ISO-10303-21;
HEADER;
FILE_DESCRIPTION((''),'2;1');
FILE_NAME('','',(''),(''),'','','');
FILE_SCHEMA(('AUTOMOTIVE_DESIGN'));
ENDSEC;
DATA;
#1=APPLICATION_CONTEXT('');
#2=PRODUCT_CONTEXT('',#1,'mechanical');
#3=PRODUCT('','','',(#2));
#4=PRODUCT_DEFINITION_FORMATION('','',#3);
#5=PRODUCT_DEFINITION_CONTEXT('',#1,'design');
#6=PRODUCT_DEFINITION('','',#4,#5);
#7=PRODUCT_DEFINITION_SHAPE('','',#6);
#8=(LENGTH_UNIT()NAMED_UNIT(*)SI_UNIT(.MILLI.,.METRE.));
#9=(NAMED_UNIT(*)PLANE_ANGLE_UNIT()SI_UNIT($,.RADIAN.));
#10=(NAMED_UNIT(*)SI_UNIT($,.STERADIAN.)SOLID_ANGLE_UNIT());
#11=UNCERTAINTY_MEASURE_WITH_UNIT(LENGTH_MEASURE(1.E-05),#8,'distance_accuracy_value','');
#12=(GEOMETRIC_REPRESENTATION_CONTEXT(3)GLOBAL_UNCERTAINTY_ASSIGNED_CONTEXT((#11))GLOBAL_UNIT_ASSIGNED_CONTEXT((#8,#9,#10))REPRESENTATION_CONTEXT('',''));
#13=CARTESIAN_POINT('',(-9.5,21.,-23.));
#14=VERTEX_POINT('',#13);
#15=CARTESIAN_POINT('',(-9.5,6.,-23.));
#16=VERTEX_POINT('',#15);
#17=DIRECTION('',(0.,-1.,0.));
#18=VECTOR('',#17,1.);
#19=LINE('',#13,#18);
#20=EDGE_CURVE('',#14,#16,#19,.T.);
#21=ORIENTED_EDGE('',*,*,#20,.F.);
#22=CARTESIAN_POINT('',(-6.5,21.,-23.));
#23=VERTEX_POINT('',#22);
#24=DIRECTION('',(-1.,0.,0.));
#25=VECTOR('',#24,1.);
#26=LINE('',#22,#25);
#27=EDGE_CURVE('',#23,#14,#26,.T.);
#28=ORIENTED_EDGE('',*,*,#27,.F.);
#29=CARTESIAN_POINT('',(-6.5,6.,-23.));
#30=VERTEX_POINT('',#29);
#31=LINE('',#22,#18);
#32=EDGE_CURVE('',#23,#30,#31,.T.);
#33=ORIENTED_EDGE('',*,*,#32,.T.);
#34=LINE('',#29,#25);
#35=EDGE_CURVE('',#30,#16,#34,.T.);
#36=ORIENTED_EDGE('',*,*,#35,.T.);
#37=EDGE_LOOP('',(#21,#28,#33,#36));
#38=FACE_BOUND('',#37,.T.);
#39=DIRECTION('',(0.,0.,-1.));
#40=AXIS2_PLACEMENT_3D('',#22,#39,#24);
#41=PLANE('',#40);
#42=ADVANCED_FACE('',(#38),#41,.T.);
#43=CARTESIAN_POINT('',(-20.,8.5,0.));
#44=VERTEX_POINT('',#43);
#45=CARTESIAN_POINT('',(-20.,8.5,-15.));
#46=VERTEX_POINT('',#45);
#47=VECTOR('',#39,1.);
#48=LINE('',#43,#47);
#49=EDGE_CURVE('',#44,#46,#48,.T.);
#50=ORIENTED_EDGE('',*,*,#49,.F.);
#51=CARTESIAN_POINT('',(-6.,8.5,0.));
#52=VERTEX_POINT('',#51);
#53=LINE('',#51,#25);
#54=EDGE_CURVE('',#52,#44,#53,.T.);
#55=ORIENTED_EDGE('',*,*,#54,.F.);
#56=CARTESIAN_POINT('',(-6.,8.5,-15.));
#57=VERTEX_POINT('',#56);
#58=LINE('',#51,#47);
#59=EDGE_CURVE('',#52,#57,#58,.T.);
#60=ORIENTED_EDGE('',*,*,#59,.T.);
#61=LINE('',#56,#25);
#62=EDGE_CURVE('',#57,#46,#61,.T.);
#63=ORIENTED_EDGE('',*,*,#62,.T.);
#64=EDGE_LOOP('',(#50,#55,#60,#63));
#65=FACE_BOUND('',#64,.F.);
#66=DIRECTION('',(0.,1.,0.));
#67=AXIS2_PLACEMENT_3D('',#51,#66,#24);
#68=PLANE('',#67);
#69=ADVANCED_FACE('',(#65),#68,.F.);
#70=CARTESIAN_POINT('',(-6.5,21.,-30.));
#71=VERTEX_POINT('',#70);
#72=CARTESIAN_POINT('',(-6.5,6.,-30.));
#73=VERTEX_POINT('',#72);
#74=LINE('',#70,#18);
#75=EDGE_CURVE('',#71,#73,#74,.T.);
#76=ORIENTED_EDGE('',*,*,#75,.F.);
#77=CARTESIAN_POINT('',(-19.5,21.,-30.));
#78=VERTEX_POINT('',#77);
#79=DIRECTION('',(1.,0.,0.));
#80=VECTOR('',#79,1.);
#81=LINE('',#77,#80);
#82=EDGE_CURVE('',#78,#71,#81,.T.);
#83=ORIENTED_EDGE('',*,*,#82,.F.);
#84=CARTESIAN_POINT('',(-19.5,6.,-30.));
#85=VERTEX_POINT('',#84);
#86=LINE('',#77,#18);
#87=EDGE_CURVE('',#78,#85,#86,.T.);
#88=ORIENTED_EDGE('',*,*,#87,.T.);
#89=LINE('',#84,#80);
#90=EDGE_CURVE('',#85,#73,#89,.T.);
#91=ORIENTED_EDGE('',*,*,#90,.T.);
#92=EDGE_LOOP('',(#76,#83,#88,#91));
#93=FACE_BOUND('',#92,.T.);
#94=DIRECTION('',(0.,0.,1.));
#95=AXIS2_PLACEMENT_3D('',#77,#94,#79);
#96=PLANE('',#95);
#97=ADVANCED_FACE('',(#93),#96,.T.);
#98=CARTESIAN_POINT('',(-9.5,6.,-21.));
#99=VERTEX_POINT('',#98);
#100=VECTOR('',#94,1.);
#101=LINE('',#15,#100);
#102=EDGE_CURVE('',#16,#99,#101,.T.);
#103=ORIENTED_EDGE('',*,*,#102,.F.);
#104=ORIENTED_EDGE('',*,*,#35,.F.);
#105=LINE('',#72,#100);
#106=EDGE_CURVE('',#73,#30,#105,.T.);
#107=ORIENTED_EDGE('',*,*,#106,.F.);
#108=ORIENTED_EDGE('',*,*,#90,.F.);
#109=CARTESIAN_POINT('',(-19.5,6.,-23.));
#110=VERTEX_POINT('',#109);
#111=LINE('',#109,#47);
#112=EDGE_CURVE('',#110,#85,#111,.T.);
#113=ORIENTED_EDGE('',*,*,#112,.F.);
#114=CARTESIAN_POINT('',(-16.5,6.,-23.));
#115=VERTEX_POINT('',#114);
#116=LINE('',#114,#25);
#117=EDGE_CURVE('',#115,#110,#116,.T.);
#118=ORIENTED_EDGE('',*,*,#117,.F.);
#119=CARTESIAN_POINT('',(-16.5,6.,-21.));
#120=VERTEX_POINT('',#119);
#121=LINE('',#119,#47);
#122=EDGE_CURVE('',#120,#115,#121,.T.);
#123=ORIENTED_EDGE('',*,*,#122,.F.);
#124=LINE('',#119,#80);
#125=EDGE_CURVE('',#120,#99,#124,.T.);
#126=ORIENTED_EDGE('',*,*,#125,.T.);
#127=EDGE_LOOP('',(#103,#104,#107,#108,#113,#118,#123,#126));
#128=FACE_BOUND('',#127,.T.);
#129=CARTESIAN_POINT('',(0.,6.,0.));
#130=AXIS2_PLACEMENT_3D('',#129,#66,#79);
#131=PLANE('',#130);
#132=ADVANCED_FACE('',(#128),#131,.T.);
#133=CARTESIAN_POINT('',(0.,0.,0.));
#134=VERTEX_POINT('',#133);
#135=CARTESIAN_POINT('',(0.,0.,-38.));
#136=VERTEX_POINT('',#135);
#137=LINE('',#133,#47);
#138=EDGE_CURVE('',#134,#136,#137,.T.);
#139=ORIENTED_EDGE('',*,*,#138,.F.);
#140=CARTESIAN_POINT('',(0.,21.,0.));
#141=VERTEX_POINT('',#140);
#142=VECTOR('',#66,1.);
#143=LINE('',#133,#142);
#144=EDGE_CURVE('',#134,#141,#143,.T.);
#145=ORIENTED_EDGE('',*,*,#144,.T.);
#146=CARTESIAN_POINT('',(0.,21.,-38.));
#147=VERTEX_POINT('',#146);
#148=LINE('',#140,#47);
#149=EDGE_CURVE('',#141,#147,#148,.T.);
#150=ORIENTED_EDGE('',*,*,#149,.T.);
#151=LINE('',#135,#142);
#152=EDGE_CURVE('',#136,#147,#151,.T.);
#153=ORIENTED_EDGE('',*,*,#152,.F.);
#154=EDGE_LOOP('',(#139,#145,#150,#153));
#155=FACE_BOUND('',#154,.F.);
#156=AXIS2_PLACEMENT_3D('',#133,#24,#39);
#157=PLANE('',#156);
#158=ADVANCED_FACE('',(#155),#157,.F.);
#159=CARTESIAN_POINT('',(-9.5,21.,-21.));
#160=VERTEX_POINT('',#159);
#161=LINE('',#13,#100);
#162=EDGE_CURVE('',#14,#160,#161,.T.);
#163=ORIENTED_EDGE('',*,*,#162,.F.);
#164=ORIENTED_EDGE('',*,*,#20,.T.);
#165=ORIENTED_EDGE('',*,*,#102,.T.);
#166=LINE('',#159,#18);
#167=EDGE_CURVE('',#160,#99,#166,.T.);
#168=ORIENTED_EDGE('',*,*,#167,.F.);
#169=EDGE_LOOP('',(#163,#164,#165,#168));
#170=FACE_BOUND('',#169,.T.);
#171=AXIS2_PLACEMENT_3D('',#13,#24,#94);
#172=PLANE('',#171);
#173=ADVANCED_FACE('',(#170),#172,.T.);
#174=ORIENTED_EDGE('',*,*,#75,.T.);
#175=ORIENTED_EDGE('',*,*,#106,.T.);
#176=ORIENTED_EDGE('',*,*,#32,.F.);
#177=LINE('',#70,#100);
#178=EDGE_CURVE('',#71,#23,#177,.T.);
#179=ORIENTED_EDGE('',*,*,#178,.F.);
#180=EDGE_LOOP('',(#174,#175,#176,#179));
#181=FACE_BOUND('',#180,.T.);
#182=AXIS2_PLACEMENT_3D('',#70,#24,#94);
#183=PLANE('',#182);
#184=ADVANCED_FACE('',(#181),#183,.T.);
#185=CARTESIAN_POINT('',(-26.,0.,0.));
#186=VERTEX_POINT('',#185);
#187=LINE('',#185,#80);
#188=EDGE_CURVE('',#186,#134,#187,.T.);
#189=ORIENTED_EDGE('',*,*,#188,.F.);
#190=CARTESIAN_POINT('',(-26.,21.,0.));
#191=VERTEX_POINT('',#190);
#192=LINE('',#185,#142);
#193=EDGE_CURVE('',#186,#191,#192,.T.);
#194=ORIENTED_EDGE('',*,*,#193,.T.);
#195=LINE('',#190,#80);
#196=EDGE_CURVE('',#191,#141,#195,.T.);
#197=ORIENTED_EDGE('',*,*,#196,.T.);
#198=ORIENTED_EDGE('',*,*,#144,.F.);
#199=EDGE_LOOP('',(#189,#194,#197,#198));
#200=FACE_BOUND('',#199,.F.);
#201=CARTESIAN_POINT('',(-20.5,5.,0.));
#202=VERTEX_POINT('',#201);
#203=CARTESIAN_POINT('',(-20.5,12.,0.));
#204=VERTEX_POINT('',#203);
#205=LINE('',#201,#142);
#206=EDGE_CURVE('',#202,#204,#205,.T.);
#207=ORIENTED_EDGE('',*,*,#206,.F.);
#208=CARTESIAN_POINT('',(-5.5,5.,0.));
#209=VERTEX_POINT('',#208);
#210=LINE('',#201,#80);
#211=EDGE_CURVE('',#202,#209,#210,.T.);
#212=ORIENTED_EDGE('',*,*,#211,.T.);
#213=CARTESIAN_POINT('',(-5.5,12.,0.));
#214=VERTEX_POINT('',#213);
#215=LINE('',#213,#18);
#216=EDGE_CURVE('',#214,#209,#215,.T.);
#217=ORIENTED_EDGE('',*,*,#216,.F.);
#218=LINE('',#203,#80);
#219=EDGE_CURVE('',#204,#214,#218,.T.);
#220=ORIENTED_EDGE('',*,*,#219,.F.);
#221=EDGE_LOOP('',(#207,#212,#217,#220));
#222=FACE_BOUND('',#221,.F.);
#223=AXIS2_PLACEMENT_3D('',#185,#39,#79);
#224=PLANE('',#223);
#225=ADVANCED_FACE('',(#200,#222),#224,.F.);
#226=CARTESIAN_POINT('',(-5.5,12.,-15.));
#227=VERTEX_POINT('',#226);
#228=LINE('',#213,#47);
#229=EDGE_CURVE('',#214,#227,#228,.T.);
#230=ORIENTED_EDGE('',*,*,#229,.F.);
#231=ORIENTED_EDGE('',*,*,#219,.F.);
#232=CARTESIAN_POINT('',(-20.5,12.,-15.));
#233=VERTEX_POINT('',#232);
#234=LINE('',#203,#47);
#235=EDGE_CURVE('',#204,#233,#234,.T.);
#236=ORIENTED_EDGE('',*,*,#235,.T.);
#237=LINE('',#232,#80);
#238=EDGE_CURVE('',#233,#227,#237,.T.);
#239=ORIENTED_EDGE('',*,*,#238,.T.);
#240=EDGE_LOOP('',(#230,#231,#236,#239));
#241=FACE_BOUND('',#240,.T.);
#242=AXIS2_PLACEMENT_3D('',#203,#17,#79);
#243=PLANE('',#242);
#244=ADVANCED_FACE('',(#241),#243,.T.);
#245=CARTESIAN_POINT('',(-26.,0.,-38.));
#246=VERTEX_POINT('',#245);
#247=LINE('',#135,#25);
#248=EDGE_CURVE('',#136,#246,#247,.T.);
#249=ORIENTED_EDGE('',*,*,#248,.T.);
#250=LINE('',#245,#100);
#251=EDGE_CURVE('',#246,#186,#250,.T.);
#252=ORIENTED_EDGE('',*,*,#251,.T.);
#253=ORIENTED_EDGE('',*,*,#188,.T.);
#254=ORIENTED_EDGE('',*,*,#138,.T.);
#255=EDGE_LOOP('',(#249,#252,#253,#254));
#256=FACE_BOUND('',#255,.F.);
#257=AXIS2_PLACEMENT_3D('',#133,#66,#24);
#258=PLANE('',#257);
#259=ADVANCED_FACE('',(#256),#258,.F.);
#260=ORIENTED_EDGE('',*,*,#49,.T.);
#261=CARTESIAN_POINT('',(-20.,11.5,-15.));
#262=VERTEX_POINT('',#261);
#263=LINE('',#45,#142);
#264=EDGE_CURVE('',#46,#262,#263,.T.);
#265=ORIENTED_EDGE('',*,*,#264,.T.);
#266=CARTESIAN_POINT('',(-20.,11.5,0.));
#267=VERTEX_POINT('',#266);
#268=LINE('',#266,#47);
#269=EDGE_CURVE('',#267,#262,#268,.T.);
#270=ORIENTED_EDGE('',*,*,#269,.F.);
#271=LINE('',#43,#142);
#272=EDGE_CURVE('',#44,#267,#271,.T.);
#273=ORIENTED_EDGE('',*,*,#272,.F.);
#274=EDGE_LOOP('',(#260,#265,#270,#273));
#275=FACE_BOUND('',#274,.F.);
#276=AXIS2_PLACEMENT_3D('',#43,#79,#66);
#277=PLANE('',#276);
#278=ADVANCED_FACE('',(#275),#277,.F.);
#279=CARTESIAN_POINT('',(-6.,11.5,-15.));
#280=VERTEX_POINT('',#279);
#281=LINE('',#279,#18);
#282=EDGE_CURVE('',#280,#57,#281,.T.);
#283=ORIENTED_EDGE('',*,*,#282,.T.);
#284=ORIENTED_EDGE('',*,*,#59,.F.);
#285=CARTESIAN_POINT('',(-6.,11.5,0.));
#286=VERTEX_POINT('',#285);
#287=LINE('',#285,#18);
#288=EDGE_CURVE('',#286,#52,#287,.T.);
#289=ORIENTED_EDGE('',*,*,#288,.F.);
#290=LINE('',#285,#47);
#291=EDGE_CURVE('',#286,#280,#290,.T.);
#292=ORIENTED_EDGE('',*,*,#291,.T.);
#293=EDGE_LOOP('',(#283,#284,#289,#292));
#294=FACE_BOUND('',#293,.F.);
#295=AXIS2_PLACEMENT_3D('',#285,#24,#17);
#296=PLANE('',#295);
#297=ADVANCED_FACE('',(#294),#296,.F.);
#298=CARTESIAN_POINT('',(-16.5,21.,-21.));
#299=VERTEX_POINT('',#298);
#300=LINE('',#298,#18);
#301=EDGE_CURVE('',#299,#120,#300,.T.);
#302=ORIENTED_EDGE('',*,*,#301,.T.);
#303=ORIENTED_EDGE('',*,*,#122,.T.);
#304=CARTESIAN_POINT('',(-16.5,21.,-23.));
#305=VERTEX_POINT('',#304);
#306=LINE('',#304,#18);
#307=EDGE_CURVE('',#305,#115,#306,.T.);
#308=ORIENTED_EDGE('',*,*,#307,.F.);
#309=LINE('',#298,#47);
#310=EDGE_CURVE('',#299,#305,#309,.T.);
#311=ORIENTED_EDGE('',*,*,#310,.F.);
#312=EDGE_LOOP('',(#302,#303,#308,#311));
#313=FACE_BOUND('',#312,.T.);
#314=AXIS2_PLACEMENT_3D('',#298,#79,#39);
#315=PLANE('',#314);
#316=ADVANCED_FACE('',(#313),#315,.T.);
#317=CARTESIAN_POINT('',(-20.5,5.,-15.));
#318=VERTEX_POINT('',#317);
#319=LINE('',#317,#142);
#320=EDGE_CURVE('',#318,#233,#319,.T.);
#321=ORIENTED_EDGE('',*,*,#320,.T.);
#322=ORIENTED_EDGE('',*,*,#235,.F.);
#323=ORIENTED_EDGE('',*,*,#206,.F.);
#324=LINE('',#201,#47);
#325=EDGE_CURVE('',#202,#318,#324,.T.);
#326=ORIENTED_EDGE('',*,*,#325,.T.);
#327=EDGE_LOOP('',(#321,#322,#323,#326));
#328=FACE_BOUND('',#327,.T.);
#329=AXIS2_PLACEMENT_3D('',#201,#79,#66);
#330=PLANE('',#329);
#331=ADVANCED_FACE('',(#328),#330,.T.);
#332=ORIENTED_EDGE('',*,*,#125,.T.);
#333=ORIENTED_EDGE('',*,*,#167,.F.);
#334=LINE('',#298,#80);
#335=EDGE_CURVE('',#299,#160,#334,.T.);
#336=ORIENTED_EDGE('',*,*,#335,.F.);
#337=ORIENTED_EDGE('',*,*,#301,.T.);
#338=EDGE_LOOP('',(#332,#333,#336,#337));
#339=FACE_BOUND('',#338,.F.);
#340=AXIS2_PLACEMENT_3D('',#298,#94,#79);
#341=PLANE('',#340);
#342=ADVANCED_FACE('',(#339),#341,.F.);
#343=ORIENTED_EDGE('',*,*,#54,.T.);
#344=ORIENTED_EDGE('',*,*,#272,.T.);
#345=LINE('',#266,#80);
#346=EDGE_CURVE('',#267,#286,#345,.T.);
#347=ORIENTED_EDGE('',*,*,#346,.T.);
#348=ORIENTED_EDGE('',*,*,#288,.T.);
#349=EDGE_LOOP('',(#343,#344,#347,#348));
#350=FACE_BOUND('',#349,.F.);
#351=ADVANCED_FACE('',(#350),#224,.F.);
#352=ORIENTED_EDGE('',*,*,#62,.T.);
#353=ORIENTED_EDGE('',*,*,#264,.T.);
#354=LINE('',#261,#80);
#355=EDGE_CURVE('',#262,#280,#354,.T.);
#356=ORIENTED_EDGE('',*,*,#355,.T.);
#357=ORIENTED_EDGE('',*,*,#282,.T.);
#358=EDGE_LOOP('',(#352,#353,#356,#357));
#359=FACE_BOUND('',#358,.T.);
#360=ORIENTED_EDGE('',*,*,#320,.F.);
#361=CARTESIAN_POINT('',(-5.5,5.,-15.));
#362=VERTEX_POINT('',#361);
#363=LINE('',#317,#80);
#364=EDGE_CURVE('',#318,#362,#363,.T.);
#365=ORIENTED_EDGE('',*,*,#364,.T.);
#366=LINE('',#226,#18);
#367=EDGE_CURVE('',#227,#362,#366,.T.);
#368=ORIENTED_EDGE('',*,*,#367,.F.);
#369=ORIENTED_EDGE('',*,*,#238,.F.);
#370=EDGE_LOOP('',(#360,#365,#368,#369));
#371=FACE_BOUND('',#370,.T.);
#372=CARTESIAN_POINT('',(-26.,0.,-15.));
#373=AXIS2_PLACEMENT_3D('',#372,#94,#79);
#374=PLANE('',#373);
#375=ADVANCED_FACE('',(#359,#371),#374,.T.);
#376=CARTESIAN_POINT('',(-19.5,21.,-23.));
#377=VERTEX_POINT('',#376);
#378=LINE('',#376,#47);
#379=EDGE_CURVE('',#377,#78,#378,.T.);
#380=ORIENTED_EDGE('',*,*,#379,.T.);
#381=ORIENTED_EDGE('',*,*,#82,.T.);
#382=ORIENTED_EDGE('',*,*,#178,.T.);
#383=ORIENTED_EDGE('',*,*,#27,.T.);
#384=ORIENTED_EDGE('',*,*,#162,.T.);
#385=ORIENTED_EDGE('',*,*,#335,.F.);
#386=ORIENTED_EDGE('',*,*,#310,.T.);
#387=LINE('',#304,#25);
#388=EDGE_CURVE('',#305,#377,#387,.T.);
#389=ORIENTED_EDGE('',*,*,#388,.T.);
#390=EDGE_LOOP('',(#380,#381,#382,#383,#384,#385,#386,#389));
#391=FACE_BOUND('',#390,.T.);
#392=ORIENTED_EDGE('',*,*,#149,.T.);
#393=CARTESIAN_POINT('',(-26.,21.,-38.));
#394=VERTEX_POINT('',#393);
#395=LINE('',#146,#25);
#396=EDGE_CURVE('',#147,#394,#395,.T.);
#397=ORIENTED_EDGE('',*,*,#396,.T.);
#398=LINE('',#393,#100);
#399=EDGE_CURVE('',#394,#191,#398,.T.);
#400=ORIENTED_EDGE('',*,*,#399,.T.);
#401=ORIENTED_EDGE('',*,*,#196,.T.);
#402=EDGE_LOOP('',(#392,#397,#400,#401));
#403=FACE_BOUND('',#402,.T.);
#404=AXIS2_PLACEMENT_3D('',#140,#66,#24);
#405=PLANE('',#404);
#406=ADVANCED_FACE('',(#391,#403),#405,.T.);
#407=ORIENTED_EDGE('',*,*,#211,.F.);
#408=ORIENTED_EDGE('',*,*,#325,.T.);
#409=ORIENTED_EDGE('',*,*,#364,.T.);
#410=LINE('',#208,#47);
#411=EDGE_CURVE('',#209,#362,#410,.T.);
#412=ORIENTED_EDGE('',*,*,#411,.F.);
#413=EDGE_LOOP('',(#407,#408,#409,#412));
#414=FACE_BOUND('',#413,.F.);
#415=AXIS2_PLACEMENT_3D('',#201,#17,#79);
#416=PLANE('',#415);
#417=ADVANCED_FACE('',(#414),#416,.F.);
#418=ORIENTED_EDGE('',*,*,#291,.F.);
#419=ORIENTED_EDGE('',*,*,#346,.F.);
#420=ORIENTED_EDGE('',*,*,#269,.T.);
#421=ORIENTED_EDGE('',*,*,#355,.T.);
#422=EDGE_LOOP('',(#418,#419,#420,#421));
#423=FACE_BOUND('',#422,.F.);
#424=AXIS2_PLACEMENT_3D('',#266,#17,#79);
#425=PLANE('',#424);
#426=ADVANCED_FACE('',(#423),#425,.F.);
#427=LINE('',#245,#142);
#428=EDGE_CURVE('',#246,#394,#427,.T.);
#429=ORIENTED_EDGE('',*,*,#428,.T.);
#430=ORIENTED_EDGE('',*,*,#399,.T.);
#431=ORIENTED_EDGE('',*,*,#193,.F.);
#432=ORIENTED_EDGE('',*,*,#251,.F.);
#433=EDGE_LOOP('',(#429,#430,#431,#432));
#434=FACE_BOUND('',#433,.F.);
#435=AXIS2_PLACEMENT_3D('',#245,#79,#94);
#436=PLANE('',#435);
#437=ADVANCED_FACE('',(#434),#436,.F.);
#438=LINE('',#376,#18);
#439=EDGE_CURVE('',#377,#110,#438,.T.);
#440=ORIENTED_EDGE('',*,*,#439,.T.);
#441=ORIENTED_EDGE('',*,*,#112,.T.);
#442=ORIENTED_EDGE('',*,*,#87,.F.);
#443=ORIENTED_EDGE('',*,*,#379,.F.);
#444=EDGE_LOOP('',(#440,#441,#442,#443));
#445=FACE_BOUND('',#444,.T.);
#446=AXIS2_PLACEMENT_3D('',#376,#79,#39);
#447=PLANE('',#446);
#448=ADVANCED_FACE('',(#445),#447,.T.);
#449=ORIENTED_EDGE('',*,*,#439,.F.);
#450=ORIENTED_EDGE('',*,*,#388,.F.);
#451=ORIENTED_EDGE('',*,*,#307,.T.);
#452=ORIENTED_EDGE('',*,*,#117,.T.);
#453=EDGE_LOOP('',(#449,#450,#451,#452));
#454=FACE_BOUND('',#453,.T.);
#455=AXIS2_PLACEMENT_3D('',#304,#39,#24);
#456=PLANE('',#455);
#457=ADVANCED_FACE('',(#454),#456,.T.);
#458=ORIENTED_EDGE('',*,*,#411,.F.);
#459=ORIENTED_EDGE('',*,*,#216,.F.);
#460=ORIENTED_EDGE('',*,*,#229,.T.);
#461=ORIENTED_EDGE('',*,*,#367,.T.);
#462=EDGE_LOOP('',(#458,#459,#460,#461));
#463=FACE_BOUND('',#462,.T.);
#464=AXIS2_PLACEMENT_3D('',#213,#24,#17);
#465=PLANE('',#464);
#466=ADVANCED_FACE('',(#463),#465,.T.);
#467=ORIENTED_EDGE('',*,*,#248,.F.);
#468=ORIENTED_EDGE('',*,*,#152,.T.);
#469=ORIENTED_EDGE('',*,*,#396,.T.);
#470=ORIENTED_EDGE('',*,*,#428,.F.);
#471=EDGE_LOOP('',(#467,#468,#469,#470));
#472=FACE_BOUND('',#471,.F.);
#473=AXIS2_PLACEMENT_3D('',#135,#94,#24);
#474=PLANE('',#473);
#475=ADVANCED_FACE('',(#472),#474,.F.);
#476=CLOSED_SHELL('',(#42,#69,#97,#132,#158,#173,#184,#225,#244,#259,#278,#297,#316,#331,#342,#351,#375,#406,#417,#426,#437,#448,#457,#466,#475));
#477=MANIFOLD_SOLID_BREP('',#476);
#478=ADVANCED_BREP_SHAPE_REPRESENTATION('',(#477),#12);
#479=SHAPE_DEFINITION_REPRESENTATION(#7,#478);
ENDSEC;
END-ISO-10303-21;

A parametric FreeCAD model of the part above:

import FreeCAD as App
import Part
import Sketcher

V = App.Vector


def add_polygon(sketch, points):
    """Adds a closed chain of lines whose ends are joined by coincident constraints."""
    first, n = sketch.GeometryCount, len(points)
    for a, b in zip(points, points[1:] + points[:1]):
        sketch.addGeometry(Part.LineSegment(App.Vector(*a, 0), App.Vector(*b, 0)), False)
    for i in range(n):
        sketch.addConstraint(Sketcher.Constraint("Coincident", first + i, 2, first + (i + 1) % n, 1))

doc = App.newDocument("Part")
params = doc.addObject("Spreadsheet::Sheet", "Params")
for row, (alias, value) in enumerate([
    ("sketch1_width", "26 mm"),
    ("sketch1_height", "38 mm"),
    ("pad1_length", "21 mm"),
    ("sketch2_width", "13 mm"),
    ("sketch2_width2", "7 mm"),
    ("sketch2_height", "2 mm"),
    ("pocket1_length", "15 mm"),
    ("sketch3_width", "15 mm"),
    ("sketch3_width2", "14 mm"),
    ("sketch3_height", "7 mm"),
    ("sketch3_height2", "3 mm"),
    ("pocket2_length", "15 mm"),
], start=1):
    params.set(f"A{row}", alias)
    params.set(f"B{row}", "=" + value)
    params.setAlias(f"B{row}", alias)

body = doc.addObject("PartDesign::Body", "Body")

sketch1 = body.newObject("Sketcher::SketchObject", "Sketch")
sketch1.AttachmentSupport = (doc.getObject("XZ_Plane"), [""])
sketch1.MapMode = "FlatFace"
add_polygon(sketch1, [(-26, -38), (-26, 0), (0, 0), (0, -38)])
sketch1.addConstraint([
    Sketcher.Constraint("Vertical", 0),
    Sketcher.Constraint("Horizontal", 1),
    Sketcher.Constraint("Vertical", 2),
    Sketcher.Constraint("Horizontal", 3),
    Sketcher.Constraint("Coincident", 1, 2, -1, 1),
    Sketcher.Constraint("DistanceX", 1, 1, 1, 2, 26.0),
    Sketcher.Constraint("DistanceY", 0, 1, 0, 2, 38.0),
])
sketch1.setExpression("Constraints[9]", "Params.sketch1_width")
sketch1.setExpression("Constraints[10]", "Params.sketch1_height")
pad1 = body.newObject("PartDesign::Pad", "Pad")
pad1.Profile = sketch1
pad1.setExpression("Length", "Params.pad1_length")
pad1.Reversed = True

sketch2 = body.newObject("Sketcher::SketchObject", "Sketch001")
sketch2.AttachmentSupport = (doc.getObject("XZ_Plane"), [""])
sketch2.MapMode = "FlatFace"
sketch2.AttachmentOffset = App.Placement(V(0, 0, -21), App.Rotation())
add_polygon(sketch2, [(-6.5, -30), (-19.5, -30), (-19.5, -23), (-16.5, -23), (-16.5, -21), (-9.5, -21), (-9.5, -23), (-6.5, -23)])
sketch2.addConstraint([
    Sketcher.Constraint("Horizontal", 0),
    Sketcher.Constraint("Vertical", 1),
    Sketcher.Constraint("Horizontal", 2),
    Sketcher.Constraint("Vertical", 3),
    Sketcher.Constraint("Horizontal", 4),
    Sketcher.Constraint("Vertical", 5),
    Sketcher.Constraint("Horizontal", 6),
    Sketcher.Constraint("Vertical", 7),
    Sketcher.Constraint("Horizontal", 2, 2, 5, 2),
    Sketcher.Constraint("Equal", 2, 6),
    Sketcher.Constraint("Equal", 4, 1),
    Sketcher.Constraint("DistanceX", 0, 2, 0, 1, 13.0),
    Sketcher.Constraint("DistanceX", 4, 1, 4, 2, 7.0),
    Sketcher.Constraint("DistanceY", 3, 1, 3, 2, 2.0),
    Sketcher.Constraint("DistanceX", 6, 2, -1, 1, 6.5),
    Sketcher.Constraint("DistanceY", 0, 2, -1, 1, 30.0),
])
sketch2.setExpression("Constraints[19]", "Params.sketch2_width")
sketch2.setExpression("Constraints[20]", "Params.sketch2_width2")
sketch2.setExpression("Constraints[21]", "Params.sketch2_height")
pocket1 = body.newObject("PartDesign::Pocket", "Pocket")
pocket1.Profile = sketch2
pocket1.setExpression("Length", "Params.pocket1_length")
pocket1.Reversed = True

sketch3 = body.newObject("Sketcher::SketchObject", "Sketch002")
sketch3.AttachmentSupport = (doc.getObject("XY_Plane"), [""])
sketch3.MapMode = "FlatFace"
add_polygon(sketch3, [(-20.5, 12), (-20.5, 5), (-5.5, 5), (-5.5, 12)])
add_polygon(sketch3, [(-20, 8.5), (-20, 11.5), (-6, 11.5), (-6, 8.5)])
sketch3.addConstraint([
    Sketcher.Constraint("Vertical", 0),
    Sketcher.Constraint("Horizontal", 1),
    Sketcher.Constraint("Vertical", 2),
    Sketcher.Constraint("Horizontal", 3),
    Sketcher.Constraint("Vertical", 4),
    Sketcher.Constraint("Horizontal", 5),
    Sketcher.Constraint("Vertical", 6),
    Sketcher.Constraint("Horizontal", 7),
    Sketcher.Constraint("DistanceX", 1, 1, 1, 2, 15.0),
    Sketcher.Constraint("DistanceX", 5, 1, 5, 2, 14.0),
    Sketcher.Constraint("DistanceY", 0, 2, 0, 1, 7.0),
    Sketcher.Constraint("DistanceY", 4, 1, 4, 2, 3.0),
    Sketcher.Constraint("DistanceY", -1, 1, 0, 2, 5.0),
    Sketcher.Constraint("DistanceX", 3, 2, 4, 2, 0.5),
    Sketcher.Constraint("DistanceY", 4, 2, 3, 2, 0.5),
    Sketcher.Constraint("DistanceX", 4, 2, -1, 1, 20.0),
])
sketch3.setExpression("Constraints[16]", "Params.sketch3_width")
sketch3.setExpression("Constraints[17]", "Params.sketch3_width2")
sketch3.setExpression("Constraints[18]", "Params.sketch3_height")
sketch3.setExpression("Constraints[19]", "Params.sketch3_height2")
pocket2 = body.newObject("PartDesign::Pocket", "Pocket001")
pocket2.Profile = sketch3
pocket2.setExpression("Length", "Params.pocket2_length")

doc.recompute()
